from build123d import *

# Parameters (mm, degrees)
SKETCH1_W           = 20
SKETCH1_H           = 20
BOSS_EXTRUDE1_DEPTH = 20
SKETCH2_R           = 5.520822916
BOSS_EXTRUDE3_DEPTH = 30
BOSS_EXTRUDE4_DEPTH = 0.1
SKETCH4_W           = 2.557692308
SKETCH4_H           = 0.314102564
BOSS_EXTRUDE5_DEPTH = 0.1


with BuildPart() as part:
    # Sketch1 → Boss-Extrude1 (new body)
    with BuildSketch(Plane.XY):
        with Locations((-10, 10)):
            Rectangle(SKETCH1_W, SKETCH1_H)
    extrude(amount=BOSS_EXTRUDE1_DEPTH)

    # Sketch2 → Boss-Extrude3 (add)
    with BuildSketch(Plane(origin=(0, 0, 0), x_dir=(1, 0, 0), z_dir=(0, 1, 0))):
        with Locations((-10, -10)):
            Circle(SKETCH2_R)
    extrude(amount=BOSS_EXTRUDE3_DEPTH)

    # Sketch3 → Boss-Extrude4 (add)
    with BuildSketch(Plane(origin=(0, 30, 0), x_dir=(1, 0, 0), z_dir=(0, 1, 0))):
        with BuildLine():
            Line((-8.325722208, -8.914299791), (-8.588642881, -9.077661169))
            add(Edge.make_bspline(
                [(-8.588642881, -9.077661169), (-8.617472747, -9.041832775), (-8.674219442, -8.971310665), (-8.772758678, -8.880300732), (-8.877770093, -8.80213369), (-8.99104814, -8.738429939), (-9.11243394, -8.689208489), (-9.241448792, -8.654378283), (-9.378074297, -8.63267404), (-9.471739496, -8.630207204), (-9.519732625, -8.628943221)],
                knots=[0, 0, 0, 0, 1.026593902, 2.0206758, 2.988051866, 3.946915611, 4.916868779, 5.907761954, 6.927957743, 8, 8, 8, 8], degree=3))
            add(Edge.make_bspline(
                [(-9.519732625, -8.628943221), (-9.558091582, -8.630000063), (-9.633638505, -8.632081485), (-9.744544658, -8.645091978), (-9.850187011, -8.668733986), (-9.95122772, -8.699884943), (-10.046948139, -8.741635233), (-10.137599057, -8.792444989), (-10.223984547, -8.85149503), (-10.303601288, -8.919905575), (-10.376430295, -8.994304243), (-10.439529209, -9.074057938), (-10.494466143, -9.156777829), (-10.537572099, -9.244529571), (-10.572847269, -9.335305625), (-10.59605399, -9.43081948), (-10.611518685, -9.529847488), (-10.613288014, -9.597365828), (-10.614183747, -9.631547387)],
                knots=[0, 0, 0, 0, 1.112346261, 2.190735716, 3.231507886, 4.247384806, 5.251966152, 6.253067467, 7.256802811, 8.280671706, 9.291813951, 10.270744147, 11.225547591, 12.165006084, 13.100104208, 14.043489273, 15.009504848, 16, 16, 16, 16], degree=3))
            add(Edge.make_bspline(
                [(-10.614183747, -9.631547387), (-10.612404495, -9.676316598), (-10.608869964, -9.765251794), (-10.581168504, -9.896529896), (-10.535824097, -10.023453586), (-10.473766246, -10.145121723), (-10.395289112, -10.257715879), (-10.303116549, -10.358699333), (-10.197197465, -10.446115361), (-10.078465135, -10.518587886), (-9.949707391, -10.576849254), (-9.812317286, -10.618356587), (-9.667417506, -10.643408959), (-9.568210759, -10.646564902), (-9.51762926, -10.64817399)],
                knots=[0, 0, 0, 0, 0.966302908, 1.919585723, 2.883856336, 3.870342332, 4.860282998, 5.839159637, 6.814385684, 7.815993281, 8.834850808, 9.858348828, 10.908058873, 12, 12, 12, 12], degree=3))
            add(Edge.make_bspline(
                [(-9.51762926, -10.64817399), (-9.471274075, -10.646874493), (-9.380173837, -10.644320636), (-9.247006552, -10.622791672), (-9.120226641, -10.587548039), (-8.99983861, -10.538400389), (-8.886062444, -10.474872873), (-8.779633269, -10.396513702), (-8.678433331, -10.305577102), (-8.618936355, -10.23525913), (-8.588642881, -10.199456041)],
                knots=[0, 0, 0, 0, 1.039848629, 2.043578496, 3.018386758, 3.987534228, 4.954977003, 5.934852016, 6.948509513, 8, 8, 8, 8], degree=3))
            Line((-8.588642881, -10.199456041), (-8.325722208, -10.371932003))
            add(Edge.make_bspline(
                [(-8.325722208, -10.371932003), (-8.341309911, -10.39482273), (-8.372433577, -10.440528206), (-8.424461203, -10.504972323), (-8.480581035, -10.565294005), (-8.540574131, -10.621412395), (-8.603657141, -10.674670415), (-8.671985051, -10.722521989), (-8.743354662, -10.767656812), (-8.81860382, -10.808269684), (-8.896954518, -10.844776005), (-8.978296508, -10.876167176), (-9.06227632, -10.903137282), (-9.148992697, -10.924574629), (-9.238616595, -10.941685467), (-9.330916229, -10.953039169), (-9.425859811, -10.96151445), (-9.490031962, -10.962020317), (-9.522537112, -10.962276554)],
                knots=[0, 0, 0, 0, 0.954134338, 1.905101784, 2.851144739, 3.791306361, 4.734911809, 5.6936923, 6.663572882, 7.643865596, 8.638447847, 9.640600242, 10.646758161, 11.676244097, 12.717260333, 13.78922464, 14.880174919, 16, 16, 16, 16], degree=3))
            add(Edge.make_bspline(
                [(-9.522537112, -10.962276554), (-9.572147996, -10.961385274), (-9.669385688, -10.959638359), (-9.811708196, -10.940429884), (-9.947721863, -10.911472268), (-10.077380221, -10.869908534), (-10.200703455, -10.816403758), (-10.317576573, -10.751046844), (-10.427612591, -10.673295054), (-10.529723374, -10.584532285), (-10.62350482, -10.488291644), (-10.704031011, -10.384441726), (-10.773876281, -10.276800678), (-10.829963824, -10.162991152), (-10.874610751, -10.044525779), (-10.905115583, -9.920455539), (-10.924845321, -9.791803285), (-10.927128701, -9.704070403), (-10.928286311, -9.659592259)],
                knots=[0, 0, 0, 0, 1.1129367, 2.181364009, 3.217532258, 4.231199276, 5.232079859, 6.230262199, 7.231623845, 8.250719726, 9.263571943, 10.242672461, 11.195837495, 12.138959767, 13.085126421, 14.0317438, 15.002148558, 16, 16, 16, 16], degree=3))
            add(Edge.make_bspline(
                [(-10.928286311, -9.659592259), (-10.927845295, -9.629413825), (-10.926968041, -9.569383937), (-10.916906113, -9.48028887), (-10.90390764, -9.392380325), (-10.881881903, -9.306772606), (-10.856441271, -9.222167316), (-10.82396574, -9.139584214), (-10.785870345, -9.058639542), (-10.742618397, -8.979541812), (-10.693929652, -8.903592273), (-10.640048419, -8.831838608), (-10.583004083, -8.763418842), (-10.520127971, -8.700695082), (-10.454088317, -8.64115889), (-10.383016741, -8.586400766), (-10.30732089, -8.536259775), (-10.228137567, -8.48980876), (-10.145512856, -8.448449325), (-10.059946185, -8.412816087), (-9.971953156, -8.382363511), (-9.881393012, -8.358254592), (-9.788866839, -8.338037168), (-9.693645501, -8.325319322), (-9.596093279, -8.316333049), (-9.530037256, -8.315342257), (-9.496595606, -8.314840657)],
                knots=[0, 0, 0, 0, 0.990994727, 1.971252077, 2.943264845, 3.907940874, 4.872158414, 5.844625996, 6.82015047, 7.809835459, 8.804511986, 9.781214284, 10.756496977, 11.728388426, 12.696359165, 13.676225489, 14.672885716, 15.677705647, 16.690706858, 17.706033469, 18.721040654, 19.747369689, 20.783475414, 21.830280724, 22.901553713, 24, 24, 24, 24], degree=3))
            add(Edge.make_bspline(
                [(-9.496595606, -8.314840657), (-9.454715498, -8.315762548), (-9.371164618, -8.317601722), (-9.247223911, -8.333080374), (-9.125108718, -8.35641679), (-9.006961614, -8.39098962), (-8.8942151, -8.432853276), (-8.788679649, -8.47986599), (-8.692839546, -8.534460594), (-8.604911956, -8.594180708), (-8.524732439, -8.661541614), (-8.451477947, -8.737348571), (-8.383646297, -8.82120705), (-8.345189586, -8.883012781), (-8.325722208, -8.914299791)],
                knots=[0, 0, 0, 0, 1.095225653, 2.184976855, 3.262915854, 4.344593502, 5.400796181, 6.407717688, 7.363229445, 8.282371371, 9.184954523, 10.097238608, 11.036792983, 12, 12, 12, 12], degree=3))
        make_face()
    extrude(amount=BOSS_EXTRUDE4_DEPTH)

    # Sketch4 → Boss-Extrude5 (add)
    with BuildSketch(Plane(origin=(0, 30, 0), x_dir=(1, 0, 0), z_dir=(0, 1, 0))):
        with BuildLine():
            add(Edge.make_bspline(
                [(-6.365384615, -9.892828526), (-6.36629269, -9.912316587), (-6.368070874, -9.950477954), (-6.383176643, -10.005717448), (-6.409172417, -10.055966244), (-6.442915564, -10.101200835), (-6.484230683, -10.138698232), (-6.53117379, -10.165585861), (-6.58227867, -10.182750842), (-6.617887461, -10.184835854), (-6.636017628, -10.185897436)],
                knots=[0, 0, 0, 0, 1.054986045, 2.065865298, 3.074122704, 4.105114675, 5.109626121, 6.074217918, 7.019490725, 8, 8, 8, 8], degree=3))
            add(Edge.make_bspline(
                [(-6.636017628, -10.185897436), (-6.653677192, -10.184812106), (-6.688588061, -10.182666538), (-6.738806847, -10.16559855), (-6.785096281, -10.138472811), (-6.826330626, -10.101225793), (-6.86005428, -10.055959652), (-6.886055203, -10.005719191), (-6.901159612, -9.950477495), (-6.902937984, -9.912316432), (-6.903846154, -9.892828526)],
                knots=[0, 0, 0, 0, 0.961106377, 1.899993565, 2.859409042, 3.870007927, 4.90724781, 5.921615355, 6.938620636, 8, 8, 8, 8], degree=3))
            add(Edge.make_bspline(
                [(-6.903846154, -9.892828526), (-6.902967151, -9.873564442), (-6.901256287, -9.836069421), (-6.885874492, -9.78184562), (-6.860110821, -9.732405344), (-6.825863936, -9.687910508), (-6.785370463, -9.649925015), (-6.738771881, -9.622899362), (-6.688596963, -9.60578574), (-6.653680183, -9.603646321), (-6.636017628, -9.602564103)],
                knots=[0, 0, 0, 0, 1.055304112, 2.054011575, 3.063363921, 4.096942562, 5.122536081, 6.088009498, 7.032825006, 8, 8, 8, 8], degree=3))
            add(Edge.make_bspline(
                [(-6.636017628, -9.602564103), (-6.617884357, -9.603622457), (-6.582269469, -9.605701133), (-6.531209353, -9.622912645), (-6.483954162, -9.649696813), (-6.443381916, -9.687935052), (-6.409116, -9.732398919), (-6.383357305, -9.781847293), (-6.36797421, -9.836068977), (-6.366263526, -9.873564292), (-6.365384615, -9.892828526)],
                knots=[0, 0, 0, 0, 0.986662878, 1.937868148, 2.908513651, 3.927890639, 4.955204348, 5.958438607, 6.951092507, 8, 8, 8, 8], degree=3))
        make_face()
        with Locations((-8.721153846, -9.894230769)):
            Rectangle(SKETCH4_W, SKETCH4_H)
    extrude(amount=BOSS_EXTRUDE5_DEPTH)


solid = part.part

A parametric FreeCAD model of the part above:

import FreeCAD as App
import Part
import Sketcher
from FreeCAD import Vector
Q = App.Units.Quantity


def add_polygon(sketch, points):
    """Adds a closed chain of lines whose ends are joined by coincident constraints."""
    first, n = sketch.GeometryCount, len(points)
    for a, b in zip(points, points[1:] + points[:1]):
        sketch.addGeometry(Part.LineSegment(App.Vector(*a, 0), App.Vector(*b, 0)), False)
    for i in range(n):
        sketch.addConstraint(Sketcher.Constraint("Coincident", first + i, 2, first + (i + 1) % n, 1))

doc = App.newDocument("Part")
body = doc.addObject("PartDesign::Body", "Body")

# Sketch on XY plane
sketch1 = body.newObject("Sketcher::SketchObject", "Sketch")
sketch1.AttachmentSupport = (doc.getObject("XY_Plane"), [""])
sketch1.MapMode = "FlatFace"
add_polygon(sketch1, [(-20, 20), (-20, 0), (0, 0), (0, 20)])  # lines 0-3
sketch1.addConstraint(Sketcher.Constraint("Vertical", 0))
sketch1.addConstraint(Sketcher.Constraint("Horizontal", 1))
sketch1.addConstraint(Sketcher.Constraint("Vertical", 2))
sketch1.addConstraint(Sketcher.Constraint("Horizontal", 3))
sketch1.addConstraint(Sketcher.Constraint("Coincident", 1, 2, -1, 1))
sketch1.addConstraint(Sketcher.Constraint("Equal", 3, 0))
sketch1.addConstraint(Sketcher.Constraint("DistanceX", 1, 1, 1, 2, Q("20 mm")))
pad1 = body.newObject("PartDesign::Pad", "Pad")
pad1.Profile = sketch1
pad1.Length = 20

# Sketch on XZ plane
sketch2 = body.newObject("Sketcher::SketchObject", "Sketch001")
sketch2.AttachmentSupport = (doc.getObject("XZ_Plane"), [""])
sketch2.MapMode = "FlatFace"
sketch2.addGeometry(Part.Circle(Vector(-10, 10, 0), Vector(0, 0, 1), 6), False)
sketch2.addConstraint(Sketcher.Constraint("DistanceX", 0, 3, -1, 1, Q("10 mm")))
sketch2.addConstraint(Sketcher.Constraint("DistanceY", -1, 1, 0, 3, Q("10 mm")))
sketch2.addConstraint(Sketcher.Constraint("Diameter", 0, Q("11.041646 mm")))
pad2 = body.newObject("PartDesign::Pad", "Pad001")
pad2.Profile = sketch2
pad2.Length = 30
pad2.Reversed = True

# Sketch on XZ plane
sketch3 = body.newObject("Sketcher::SketchObject", "Sketch002")
sketch3.AttachmentSupport = (doc.getObject("XZ_Plane"), [""])
sketch3.MapMode = "FlatFace"
sketch3.AttachmentOffset = App.Placement(Vector(0, 0, -30), App.Rotation())
sketch3.addGeometry(Part.LineSegment(Vector(-8.588643, 9.077661, 0), Vector(-8.325722, 8.9143, 0)), False)
sketch3.addGeometry(Part.BSplineCurve([Vector(-9.496596, 8.314841, 0), Vector(-9.454715, 8.315763, 0), Vector(-9.371165, 8.317602, 0), Vector(-9.247224, 8.33308, 0), Vector(-9.125109, 8.356417, 0), Vector(-9.006962, 8.39099, 0), Vector(-8.894215, 8.432853, 0), Vector(-8.78868, 8.479866, 0), Vector(-8.69284, 8.534461, 0), Vector(-8.604912, 8.594181, 0), Vector(-8.524732, 8.661542, 0), Vector(-8.451478, 8.737349, 0), Vector(-8.383646, 8.821207, 0), Vector(-8.34519, 8.883013, 0), Vector(-8.325722, 8.9143, 0)], [4, 1, 1, 1, 1, 1, 1, 1, 1, 1, 1, 1, 4], [0, 1.095225653, 2.184976855, 3.262915854, 4.344593502, 5.400796181, 6.407717688, 7.363229445, 8.282371371, 9.184954523, 10.097238608, 11.036792983, 12], False, 3, [1, 1, 1, 1, 1, 1, 1, 1, 1, 1, 1, 1, 1, 1, 1], False), False)
sketch3.addGeometry(Part.BSplineCurve([Vector(-10.928286, 9.659592, 0), Vector(-10.927845, 9.629414, 0), Vector(-10.926968, 9.569384, 0), Vector(-10.916906, 9.480289, 0), Vector(-10.903908, 9.39238, 0), Vector(-10.881882, 9.306773, 0), Vector(-10.856441, 9.222167, 0), Vector(-10.823966, 9.139584, 0), Vector(-10.78587, 9.05864, 0), Vector(-10.742618, 8.979542, 0), Vector(-10.69393, 8.903592, 0), Vector(-10.640048, 8.831839, 0), Vector(-10.583004, 8.763419, 0), Vector(-10.520128, 8.700695, 0), Vector(-10.454088, 8.641159, 0), Vector(-10.383017, 8.586401, 0), Vector(-10.307321, 8.53626, 0), Vector(-10.228138, 8.489809, 0), Vector(-10.145513, 8.448449, 0), Vector(-10.059946, 8.412816, 0), Vector(-9.971953, 8.382364, 0), Vector(-9.881393, 8.358255, 0), Vector(-9.788867, 8.338037, 0), Vector(-9.693646, 8.325319, 0), Vector(-9.596093, 8.316333, 0), Vector(-9.530037, 8.315342, 0), Vector(-9.496596, 8.314841, 0)], [4, 1, 1, 1, 1, 1, 1, 1, 1, 1, 1, 1, 1, 1, 1, 1, 1, 1, 1, 1, 1, 1, 1, 1, 4], [0, 0.990994727, 1.971252077, 2.943264845, 3.907940874, 4.872158414, 5.844625996, 6.82015047, 7.809835459, 8.804511986, 9.781214284, 10.756496977, 11.728388426, 12.696359165, 13.676225489, 14.672885716, 15.677705647, 16.690706858, 17.706033469, 18.721040654, 19.747369689, 20.783475414, 21.830280724, 22.901553713, 24], False, 3, [1, 1, 1, 1, 1, 1, 1, 1, 1, 1, 1, 1, 1, 1, 1, 1, 1, 1, 1, 1, 1, 1, 1, 1, 1, 1, 1], False), False)
sketch3.addGeometry(Part.BSplineCurve([Vector(-9.522537, 10.962277, 0), Vector(-9.572148, 10.961385, 0), Vector(-9.669386, 10.959638, 0), Vector(-9.811708, 10.94043, 0), Vector(-9.947722, 10.911472, 0), Vector(-10.07738, 10.869909, 0), Vector(-10.200703, 10.816404, 0), Vector(-10.317577, 10.751047, 0), Vector(-10.427613, 10.673295, 0), Vector(-10.529723, 10.584532, 0), Vector(-10.623505, 10.488292, 0), Vector(-10.704031, 10.384442, 0), Vector(-10.773876, 10.276801, 0), Vector(-10.829964, 10.162991, 0), Vector(-10.874611, 10.044526, 0), Vector(-10.905116, 9.920456, 0), Vector(-10.924845, 9.791803, 0), Vector(-10.927129, 9.70407, 0), Vector(-10.928286, 9.659592, 0)], [4, 1, 1, 1, 1, 1, 1, 1, 1, 1, 1, 1, 1, 1, 1, 1, 4], [0, 1.1129367, 2.181364009, 3.217532258, 4.231199276, 5.232079859, 6.230262199, 7.231623845, 8.250719726, 9.263571943, 10.242672461, 11.195837495, 12.138959767, 13.085126421, 14.0317438, 15.002148558, 16], False, 3, [1, 1, 1, 1, 1, 1, 1, 1, 1, 1, 1, 1, 1, 1, 1, 1, 1, 1, 1], False), False)
sketch3.addGeometry(Part.BSplineCurve([Vector(-8.325722, 10.371932, 0), Vector(-8.34131, 10.394823, 0), Vector(-8.372434, 10.440528, 0), Vector(-8.424461, 10.504972, 0), Vector(-8.480581, 10.565294, 0), Vector(-8.540574, 10.621412, 0), Vector(-8.603657, 10.67467, 0), Vector(-8.671985, 10.722522, 0), Vector(-8.743355, 10.767657, 0), Vector(-8.818604, 10.80827, 0), Vector(-8.896955, 10.844776, 0), Vector(-8.978297, 10.876167, 0), Vector(-9.062276, 10.903137, 0), Vector(-9.148993, 10.924575, 0), Vector(-9.238617, 10.941685, 0), Vector(-9.330916, 10.953039, 0), Vector(-9.42586, 10.961514, 0), Vector(-9.490032, 10.96202, 0), Vector(-9.522537, 10.962277, 0)], [4, 1, 1, 1, 1, 1, 1, 1, 1, 1, 1, 1, 1, 1, 1, 1, 4], [0, 0.954134338, 1.905101784, 2.851144739, 3.791306361, 4.734911809, 5.6936923, 6.663572882, 7.643865596, 8.638447847, 9.640600242, 10.646758161, 11.676244097, 12.717260333, 13.78922464, 14.880174919, 16], False, 3, [1, 1, 1, 1, 1, 1, 1, 1, 1, 1, 1, 1, 1, 1, 1, 1, 1, 1, 1], False), False)
sketch3.addGeometry(Part.LineSegment(Vector(-8.325722, 10.371932, 0), Vector(-8.588643, 10.199456, 0)), False)
sketch3.addGeometry(Part.BSplineCurve([Vector(-9.517629, 10.648174, 0), Vector(-9.471274, 10.646874, 0), Vector(-9.380174, 10.644321, 0), Vector(-9.247007, 10.622792, 0), Vector(-9.120227, 10.587548, 0), Vector(-8.999839, 10.5384, 0), Vector(-8.886062, 10.474873, 0), Vector(-8.779633, 10.396514, 0), Vector(-8.678433, 10.305577, 0), Vector(-8.618936, 10.235259, 0), Vector(-8.588643, 10.199456, 0)], [4, 1, 1, 1, 1, 1, 1, 1, 4], [0, 1.039848629, 2.043578496, 3.018386758, 3.987534228, 4.954977003, 5.934852016, 6.948509513, 8], False, 3, [1, 1, 1, 1, 1, 1, 1, 1, 1, 1, 1], False), False)
sketch3.addGeometry(Part.BSplineCurve([Vector(-10.614184, 9.631547, 0), Vector(-10.612404, 9.676317, 0), Vector(-10.60887, 9.765252, 0), Vector(-10.581169, 9.89653, 0), Vector(-10.535824, 10.023454, 0), Vector(-10.473766, 10.145122, 0), Vector(-10.395289, 10.257716, 0), Vector(-10.303117, 10.358699, 0), Vector(-10.197197, 10.446115, 0), Vector(-10.078465, 10.518588, 0), Vector(-9.949707, 10.576849, 0), Vector(-9.812317, 10.618357, 0), Vector(-9.667418, 10.643409, 0), Vector(-9.568211, 10.646565, 0), Vector(-9.517629, 10.648174, 0)], [4, 1, 1, 1, 1, 1, 1, 1, 1, 1, 1, 1, 4], [0, 0.966302908, 1.919585723, 2.883856336, 3.870342332, 4.860282998, 5.839159637, 6.814385684, 7.815993281, 8.834850808, 9.858348828, 10.908058873, 12], False, 3, [1, 1, 1, 1, 1, 1, 1, 1, 1, 1, 1, 1, 1, 1, 1], False), False)
sketch3.addGeometry(Part.BSplineCurve([Vector(-9.519733, 8.628943, 0), Vector(-9.558092, 8.63, 0), Vector(-9.633639, 8.632081, 0), Vector(-9.744545, 8.645092, 0), Vector(-9.850187, 8.668734, 0), Vector(-9.951228, 8.699885, 0), Vector(-10.046948, 8.741635, 0), Vector(-10.137599, 8.792445, 0), Vector(-10.223985, 8.851495, 0), Vector(-10.303601, 8.919906, 0), Vector(-10.37643, 8.994304, 0), Vector(-10.439529, 9.074058, 0), Vector(-10.494466, 9.156778, 0), Vector(-10.537572, 9.24453, 0), Vector(-10.572847, 9.335306, 0), Vector(-10.596054, 9.430819, 0), Vector(-10.611519, 9.529847, 0), Vector(-10.613288, 9.597366, 0), Vector(-10.614184, 9.631547, 0)], [4, 1, 1, 1, 1, 1, 1, 1, 1, 1, 1, 1, 1, 1, 1, 1, 4], [0, 1.112346261, 2.190735716, 3.231507886, 4.247384806, 5.251966152, 6.253067467, 7.256802811, 8.280671706, 9.291813951, 10.270744147, 11.225547591, 12.165006084, 13.100104208, 14.043489273, 15.009504848, 16], False, 3, [1, 1, 1, 1, 1, 1, 1, 1, 1, 1, 1, 1, 1, 1, 1, 1, 1, 1, 1], False), False)
sketch3.addGeometry(Part.BSplineCurve([Vector(-8.588643, 9.077661, 0), Vector(-8.617473, 9.041833, 0), Vector(-8.674219, 8.971311, 0), Vector(-8.772759, 8.880301, 0), Vector(-8.87777, 8.802134, 0), Vector(-8.991048, 8.73843, 0), Vector(-9.112434, 8.689208, 0), Vector(-9.241449, 8.654378, 0), Vector(-9.378074, 8.632674, 0), Vector(-9.471739, 8.630207, 0), Vector(-9.519733, 8.628943, 0)], [4, 1, 1, 1, 1, 1, 1, 1, 4], [0, 1.026593902, 2.0206758, 2.988051866, 3.946915611, 4.916868779, 5.907761954, 6.927957743, 8], False, 3, [1, 1, 1, 1, 1, 1, 1, 1, 1, 1, 1], False), False)
sketch3.addConstraint(Sketcher.Constraint("Block", 1))
sketch3.addConstraint(Sketcher.Constraint("Block", 2))
sketch3.addConstraint(Sketcher.Constraint("Block", 3))
sketch3.addConstraint(Sketcher.Constraint("Block", 4))
sketch3.addConstraint(Sketcher.Constraint("Block", 6))
sketch3.addConstraint(Sketcher.Constraint("Block", 7))
sketch3.addConstraint(Sketcher.Constraint("Block", 8))
sketch3.addConstraint(Sketcher.Constraint("Block", 9))
sketch3.addConstraint(Sketcher.Constraint("Coincident", 0, 2, 1, 2))
sketch3.addConstraint(Sketcher.Constraint("Coincident", 4, 1, 5, 1))
sketch3.addConstraint(Sketcher.Constraint("Coincident", 5, 2, 6, 2))
sketch3.addConstraint(Sketcher.Constraint("Coincident", 9, 1, 0, 1))
pad3 = body.newObject("PartDesign::Pad", "Pad002")
pad3.Profile = sketch3
pad3.Length = 0.1
pad3.Reversed = True

# Sketch on XZ plane
sketch4 = body.newObject("Sketcher::SketchObject", "Sketch003")
sketch4.AttachmentSupport = (doc.getObject("XZ_Plane"), [""])
sketch4.MapMode = "FlatFace"
sketch4.AttachmentOffset = App.Placement(Vector(0, 0, -30), App.Rotation())
sketch4.addGeometry(Part.BSplineCurve([Vector(-6.365385, 9.892829, 0), Vector(-6.366293, 9.912317, 0), Vector(-6.368071, 9.950478, 0), Vector(-6.383177, 10.005717, 0), Vector(-6.409172, 10.055966, 0), Vector(-6.442916, 10.101201, 0), Vector(-6.484231, 10.138698, 0), Vector(-6.531174, 10.165586, 0), Vector(-6.582279, 10.182751, 0), Vector(-6.617887, 10.184836, 0), Vector(-6.636018, 10.185897, 0)], [4, 1, 1, 1, 1, 1, 1, 1, 4], [0, 1.054986045, 2.065865298, 3.074122704, 4.105114675, 5.109626121, 6.074217918, 7.019490725, 8], False, 3, [1, 1, 1, 1, 1, 1, 1, 1, 1, 1, 1], False), False)  # 0
sketch4.addGeometry(Part.BSplineCurve([Vector(-6.636018, 9.602564, 0), Vector(-6.617884, 9.603622, 0), Vector(-6.582269, 9.605701, 0), Vector(-6.531209, 9.622913, 0), Vector(-6.483954, 9.649697, 0), Vector(-6.443382, 9.687935, 0), Vector(-6.409116, 9.732399, 0), Vector(-6.383357, 9.781847, 0), Vector(-6.367974, 9.836069, 0), Vector(-6.366264, 9.873564, 0), Vector(-6.365385, 9.892829, 0)], [4, 1, 1, 1, 1, 1, 1, 1, 4], [0, 0.986662878, 1.937868148, 2.908513651, 3.927890639, 4.955204348, 5.958438607, 6.951092507, 8], False, 3, [1, 1, 1, 1, 1, 1, 1, 1, 1, 1, 1], False), False)  # 1
sketch4.addGeometry(Part.BSplineCurve([Vector(-6.903846, 9.892829, 0), Vector(-6.902967, 9.873564, 0), Vector(-6.901256, 9.836069, 0), Vector(-6.885874, 9.781846, 0), Vector(-6.860111, 9.732405, 0), Vector(-6.825864, 9.687911, 0), Vector(-6.78537, 9.649925, 0), Vector(-6.738772, 9.622899, 0), Vector(-6.688597, 9.605786, 0), Vector(-6.65368, 9.603646, 0), Vector(-6.636018, 9.602564, 0)], [4, 1, 1, 1, 1, 1, 1, 1, 4], [0, 1.055304112, 2.054011575, 3.063363921, 4.096942562, 5.122536081, 6.088009498, 7.032825006, 8], False, 3, [1, 1, 1, 1, 1, 1, 1, 1, 1, 1, 1], False), False)  # 2
sketch4.addGeometry(Part.BSplineCurve([Vector(-6.636018, 10.185897, 0), Vector(-6.653677, 10.184812, 0), Vector(-6.688588, 10.182667, 0), Vector(-6.738807, 10.165599, 0), Vector(-6.785096, 10.138473, 0), Vector(-6.826331, 10.101226, 0), Vector(-6.860054, 10.05596, 0), Vector(-6.886055, 10.005719, 0), Vector(-6.90116, 9.950477, 0), Vector(-6.902938, 9.912316, 0), Vector(-6.903846, 9.892829, 0)], [4, 1, 1, 1, 1, 1, 1, 1, 4], [0, 0.961106377, 1.899993565, 2.859409042, 3.870007927, 4.90724781, 5.921615355, 6.938620636, 8], False, 3, [1, 1, 1, 1, 1, 1, 1, 1, 1, 1, 1], False), False)  # 3
add_polygon(sketch4, [(-10, 9.737179), (-10, 10.051282), (-7.442308, 10.051282), (-7.442308, 9.737179)])  # lines 4-7
sketch4.addConstraint(Sketcher.Constraint("Block", 0))
sketch4.addConstraint(Sketcher.Constraint("Block", 1))
sketch4.addConstraint(Sketcher.Constraint("Block", 2))
sketch4.addConstraint(Sketcher.Constraint("Block", 3))
sketch4.addConstraint(Sketcher.Constraint("Vertical", 4))
sketch4.addConstraint(Sketcher.Constraint("Horizontal", 5))
sketch4.addConstraint(Sketcher.Constraint("Vertical", 6))
sketch4.addConstraint(Sketcher.Constraint("Horizontal", 7))
sketch4.addConstraint(Sketcher.Constraint("DistanceX", 4, 2, -1, 1, Q("10 mm")))
sketch4.addConstraint(Sketcher.Constraint("DistanceX", 5, 1, 5, 2, Q("2.557692 mm")))
sketch4.addConstraint(Sketcher.Constraint("DistanceY", 4, 1, 4, 2, Q("0.314103 mm")))
sketch4.addConstraint(Sketcher.Constraint("DistanceY", -1, 1, 6, 2, Q("9.737179 mm")))
pad4 = body.newObject("PartDesign::Pad", "Pad003")
pad4.Profile = sketch4
pad4.Length = 0.1
pad4.Reversed = True

doc.recompute()
